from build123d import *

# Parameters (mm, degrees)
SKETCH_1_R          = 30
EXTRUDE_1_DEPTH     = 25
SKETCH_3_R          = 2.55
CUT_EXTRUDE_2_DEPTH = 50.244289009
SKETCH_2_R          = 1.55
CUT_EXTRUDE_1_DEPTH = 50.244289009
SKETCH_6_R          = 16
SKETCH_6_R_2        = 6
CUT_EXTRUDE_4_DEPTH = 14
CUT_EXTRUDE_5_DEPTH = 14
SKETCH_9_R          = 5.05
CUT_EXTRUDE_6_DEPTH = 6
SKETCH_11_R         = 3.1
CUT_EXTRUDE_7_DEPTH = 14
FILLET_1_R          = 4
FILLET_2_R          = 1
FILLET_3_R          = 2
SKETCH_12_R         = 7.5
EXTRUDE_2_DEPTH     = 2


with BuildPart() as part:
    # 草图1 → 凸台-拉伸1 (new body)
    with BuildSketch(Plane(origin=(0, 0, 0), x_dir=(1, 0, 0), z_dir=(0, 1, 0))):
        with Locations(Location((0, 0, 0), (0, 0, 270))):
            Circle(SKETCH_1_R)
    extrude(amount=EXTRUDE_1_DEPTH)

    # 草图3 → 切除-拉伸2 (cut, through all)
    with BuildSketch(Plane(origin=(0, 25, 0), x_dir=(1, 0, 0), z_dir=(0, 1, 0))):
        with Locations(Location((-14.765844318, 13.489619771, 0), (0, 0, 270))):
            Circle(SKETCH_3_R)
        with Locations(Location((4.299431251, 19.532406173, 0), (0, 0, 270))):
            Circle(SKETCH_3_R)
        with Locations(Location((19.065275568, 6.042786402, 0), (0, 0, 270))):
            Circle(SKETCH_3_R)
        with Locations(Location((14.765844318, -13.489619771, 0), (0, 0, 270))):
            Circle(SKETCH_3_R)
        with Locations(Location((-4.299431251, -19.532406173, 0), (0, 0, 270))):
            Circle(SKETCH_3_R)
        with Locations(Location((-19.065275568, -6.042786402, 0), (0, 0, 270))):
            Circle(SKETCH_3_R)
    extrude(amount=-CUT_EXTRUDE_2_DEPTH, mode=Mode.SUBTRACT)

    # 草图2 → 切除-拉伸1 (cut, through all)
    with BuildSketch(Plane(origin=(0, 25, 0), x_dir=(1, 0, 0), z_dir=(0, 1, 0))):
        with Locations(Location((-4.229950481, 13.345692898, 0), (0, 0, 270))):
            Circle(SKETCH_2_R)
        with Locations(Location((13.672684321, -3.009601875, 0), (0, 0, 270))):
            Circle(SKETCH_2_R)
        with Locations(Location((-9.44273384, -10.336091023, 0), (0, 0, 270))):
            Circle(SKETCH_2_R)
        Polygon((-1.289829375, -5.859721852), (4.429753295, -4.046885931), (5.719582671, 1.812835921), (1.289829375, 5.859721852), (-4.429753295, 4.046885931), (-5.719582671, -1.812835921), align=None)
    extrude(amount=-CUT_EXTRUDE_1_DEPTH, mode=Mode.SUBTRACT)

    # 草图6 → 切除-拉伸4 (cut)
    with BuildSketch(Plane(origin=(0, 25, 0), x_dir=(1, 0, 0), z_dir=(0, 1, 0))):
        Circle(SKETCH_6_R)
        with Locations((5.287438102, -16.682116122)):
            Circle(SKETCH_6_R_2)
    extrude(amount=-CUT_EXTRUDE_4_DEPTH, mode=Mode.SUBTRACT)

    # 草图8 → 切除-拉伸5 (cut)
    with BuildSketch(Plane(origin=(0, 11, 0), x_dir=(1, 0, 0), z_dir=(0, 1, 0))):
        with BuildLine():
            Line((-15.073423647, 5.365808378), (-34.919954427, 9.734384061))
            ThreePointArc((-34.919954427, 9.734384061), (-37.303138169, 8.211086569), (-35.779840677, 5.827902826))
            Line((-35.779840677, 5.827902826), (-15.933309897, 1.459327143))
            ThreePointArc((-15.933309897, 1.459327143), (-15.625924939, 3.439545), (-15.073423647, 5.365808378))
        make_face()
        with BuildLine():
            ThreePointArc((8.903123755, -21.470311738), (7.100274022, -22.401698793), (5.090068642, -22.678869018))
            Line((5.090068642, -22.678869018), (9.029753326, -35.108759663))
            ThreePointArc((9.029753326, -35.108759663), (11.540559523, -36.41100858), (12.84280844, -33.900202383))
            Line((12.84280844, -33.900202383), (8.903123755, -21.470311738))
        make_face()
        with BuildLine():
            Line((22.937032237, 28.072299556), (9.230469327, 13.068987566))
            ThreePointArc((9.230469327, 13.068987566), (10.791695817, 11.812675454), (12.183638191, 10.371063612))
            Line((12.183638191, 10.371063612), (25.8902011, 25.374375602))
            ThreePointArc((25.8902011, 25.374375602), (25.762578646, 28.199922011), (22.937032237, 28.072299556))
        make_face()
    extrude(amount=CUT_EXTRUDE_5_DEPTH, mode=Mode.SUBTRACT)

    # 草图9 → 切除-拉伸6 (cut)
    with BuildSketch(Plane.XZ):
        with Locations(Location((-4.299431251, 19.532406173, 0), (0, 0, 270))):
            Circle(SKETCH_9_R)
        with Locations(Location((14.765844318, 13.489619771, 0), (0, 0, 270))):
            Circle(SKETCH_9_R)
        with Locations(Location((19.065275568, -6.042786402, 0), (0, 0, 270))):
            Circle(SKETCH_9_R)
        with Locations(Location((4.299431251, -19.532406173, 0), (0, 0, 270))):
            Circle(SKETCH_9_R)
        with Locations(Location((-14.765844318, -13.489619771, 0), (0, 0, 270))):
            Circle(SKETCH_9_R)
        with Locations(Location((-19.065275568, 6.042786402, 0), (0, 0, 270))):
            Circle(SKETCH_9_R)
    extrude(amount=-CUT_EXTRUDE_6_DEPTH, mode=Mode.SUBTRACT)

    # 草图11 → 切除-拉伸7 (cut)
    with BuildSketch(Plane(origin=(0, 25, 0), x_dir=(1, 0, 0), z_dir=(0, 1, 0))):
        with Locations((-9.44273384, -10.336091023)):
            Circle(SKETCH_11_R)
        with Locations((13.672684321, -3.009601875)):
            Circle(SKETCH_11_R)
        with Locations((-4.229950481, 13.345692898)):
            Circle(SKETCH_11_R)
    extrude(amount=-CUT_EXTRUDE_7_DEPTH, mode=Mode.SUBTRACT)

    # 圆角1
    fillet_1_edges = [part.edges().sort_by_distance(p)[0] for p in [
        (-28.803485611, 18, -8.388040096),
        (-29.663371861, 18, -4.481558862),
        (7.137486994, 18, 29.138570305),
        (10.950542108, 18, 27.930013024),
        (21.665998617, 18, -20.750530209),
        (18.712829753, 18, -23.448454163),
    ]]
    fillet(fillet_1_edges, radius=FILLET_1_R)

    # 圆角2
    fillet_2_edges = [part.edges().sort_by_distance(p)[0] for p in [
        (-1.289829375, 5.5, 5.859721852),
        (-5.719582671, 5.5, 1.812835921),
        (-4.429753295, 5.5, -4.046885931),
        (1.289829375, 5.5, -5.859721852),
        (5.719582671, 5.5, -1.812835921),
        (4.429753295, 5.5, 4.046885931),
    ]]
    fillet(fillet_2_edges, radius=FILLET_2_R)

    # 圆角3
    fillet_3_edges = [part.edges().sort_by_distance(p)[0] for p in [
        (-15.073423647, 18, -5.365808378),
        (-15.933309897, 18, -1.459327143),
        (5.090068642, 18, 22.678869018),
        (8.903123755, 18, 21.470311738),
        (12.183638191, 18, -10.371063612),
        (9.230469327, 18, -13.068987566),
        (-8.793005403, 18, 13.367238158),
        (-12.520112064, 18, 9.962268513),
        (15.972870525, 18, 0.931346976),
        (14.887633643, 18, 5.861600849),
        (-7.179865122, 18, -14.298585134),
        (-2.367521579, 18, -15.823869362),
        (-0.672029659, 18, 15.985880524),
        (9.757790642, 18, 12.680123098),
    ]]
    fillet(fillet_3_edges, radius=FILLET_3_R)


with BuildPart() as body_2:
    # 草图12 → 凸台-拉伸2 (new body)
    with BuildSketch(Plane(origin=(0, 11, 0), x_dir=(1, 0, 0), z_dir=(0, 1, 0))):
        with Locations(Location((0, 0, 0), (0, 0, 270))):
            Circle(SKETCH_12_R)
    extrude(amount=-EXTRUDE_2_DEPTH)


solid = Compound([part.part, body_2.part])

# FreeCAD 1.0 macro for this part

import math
import FreeCAD as App
import Part
import Sketcher


def edges_at(feature, points):
    """Names of the edges that pass closest to the given points."""
    edges = feature.Shape.Edges
    near = lambda p: min(range(len(edges)), key=lambda i: edges[i].distToShape(Part.Vertex(*p))[0])
    return sorted({f"Edge{near(p) + 1}" for p in points})

doc = App.newDocument("Part")
body = doc.addObject("PartDesign::Body", "Body")

# Sketch on XZ plane
sketch1 = body.newObject("Sketcher::SketchObject", "Sketch")
sketch1.AttachmentSupport = (doc.getObject("XZ_Plane"), [""])
sketch1.MapMode = "FlatFace"
sketch1.addGeometry(Part.Circle(App.Vector(0, 0, 0), App.Vector(0, 0, 1), 30), False)
sketch1.addConstraint([
    Sketcher.Constraint("Coincident", 0, 3, -1, 1),
    Sketcher.Constraint("Diameter", 0, 60.0),
])
pad1 = body.newObject("PartDesign::Pad", "Pad")
pad1.Profile = sketch1
pad1.Length = 25
pad1.Reversed = True

# Sketch on XZ plane
sketch2 = body.newObject("Sketcher::SketchObject", "Sketch001")
sketch2.AttachmentSupport = (doc.getObject("XZ_Plane"), [""])
sketch2.MapMode = "FlatFace"
sketch2.AttachmentOffset = App.Placement(App.Vector(0, 0, -25), App.Rotation())
sketch2.addGeometry([
    Part.Circle(App.Vector(-14.8, -13.5, 0), App.Vector(0, 0, 1), 2.5),  # 0
    Part.Circle(App.Vector(4.3, -19.5, 0), App.Vector(0, 0, 1), 2.5),  # 1
    Part.Circle(App.Vector(19.1, -6, 0), App.Vector(0, 0, 1), 2.5),  # 2
    Part.Circle(App.Vector(14.8, 13.5, 0), App.Vector(0, 0, 1), 2.5),  # 3
    Part.Circle(App.Vector(-4.3, 19.5, 0), App.Vector(0, 0, 1), 2.5),  # 4
    Part.Circle(App.Vector(-19.1, 6, 0), App.Vector(0, 0, 1), 2.5),  # 5
], False)
sketch2.addConstraint([
    Sketcher.Constraint("Equal", 0, 1),
    Sketcher.Constraint("Equal", 1, 2),
    Sketcher.Constraint("Equal", 2, 3),
    Sketcher.Constraint("Equal", 3, 4),
    Sketcher.Constraint("Equal", 4, 5),
    Sketcher.Constraint("Symmetric", 0, 3, 3, 3, -1, 1),
    Sketcher.Constraint("Symmetric", 1, 3, 4, 3, -1, 1),
    Sketcher.Constraint("Symmetric", 2, 3, 5, 3, -1, 1),
    Sketcher.Constraint("Diameter", 0, 5.1),
    Sketcher.Constraint("DistanceY", 0, 3, -1, 1, 13.48962),
    Sketcher.Constraint("DistanceX", -1, 1, 1, 3, 4.299431),
    Sketcher.Constraint("DistanceY", 1, 3, 2, 3, 13.48962),
    Sketcher.Constraint("DistanceX", 0, 3, 2, 3, 33.83112),
    Sketcher.Constraint("DistanceX", 3, 3, 2, 3, 4.299431),
    Sketcher.Constraint("DistanceY", 1, 3, -1, 1, 19.532406),
])
pocket1 = body.newObject("PartDesign::Pocket", "Pocket")
pocket1.Profile = sketch2
pocket1.Type = "ThroughAll"
pocket1.Reversed = True

# Sketch on XZ plane
sketch3 = body.newObject("Sketcher::SketchObject", "Sketch002")
sketch3.AttachmentSupport = (doc.getObject("XZ_Plane"), [""])
sketch3.MapMode = "FlatFace"
sketch3.AttachmentOffset = App.Placement(App.Vector(0, 0, -25), App.Rotation())
sketch3.addGeometry([
    Part.Circle(App.Vector(-4.2, -13.3, 0), App.Vector(0, 0, 1), 1.6),  # 0
    Part.Circle(App.Vector(13.7, 3, 0), App.Vector(0, 0, 1), 1.6),  # 1
    Part.Circle(App.Vector(-9.4, 10.3, 0), App.Vector(0, 0, 1), 1.6),  # 2
    Part.LineSegment(App.Vector(-1.3, 5.9, 0), App.Vector(4.4, 4, 0)),  # 3
    Part.LineSegment(App.Vector(4.4, 4, 0), App.Vector(5.7, -1.8, 0)),  # 4
    Part.LineSegment(App.Vector(5.7, -1.8, 0), App.Vector(1.3, -5.9, 0)),  # 5
    Part.LineSegment(App.Vector(1.3, -5.9, 0), App.Vector(-4.4, -4, 0)),  # 6
    Part.LineSegment(App.Vector(-4.4, -4, 0), App.Vector(-5.7, 1.8, 0)),  # 7
    Part.LineSegment(App.Vector(-5.7, 1.8, 0), App.Vector(-1.3, 5.9, 0)),  # 8
], False)
sketch3.addConstraint([
    Sketcher.Constraint("Coincident", 3, 2, 4, 1),
    Sketcher.Constraint("Coincident", 4, 2, 5, 1),
    Sketcher.Constraint("Coincident", 5, 2, 6, 1),
    Sketcher.Constraint("Coincident", 6, 2, 7, 1),
    Sketcher.Constraint("Coincident", 7, 2, 8, 1),
    Sketcher.Constraint("Coincident", 8, 2, 3, 1),
    Sketcher.Constraint("Equal", 0, 1),
    Sketcher.Constraint("Equal", 1, 2),
    Sketcher.Constraint("Symmetric", 3, 2, 6, 2, -1, 1),
    Sketcher.Constraint("Symmetric", 4, 2, 7, 2, -1, 1),
    Sketcher.Constraint("Symmetric", 5, 2, 8, 2, -1, 1),
    Sketcher.Constraint("Equal", 3, 4),
    Sketcher.Constraint("Equal", 4, 5),
    Sketcher.Constraint("Diameter", 0, 3.1),
    Sketcher.Constraint("Distance", 3, 6.0),
    Sketcher.Constraint("DistanceY", -1, 1, 1, 3, 3.009602),
    Sketcher.Constraint("DistanceX", 4, 2, 1, 3, 7.953102),
    Sketcher.Constraint("DistanceX", 0, 3, -1, 1, 4.22995),
    Sketcher.Constraint("DistanceY", -1, 1, 2, 3, 10.336091),
    Sketcher.Constraint("DistanceX", -1, 1, 5, 2, 1.289829),
    Sketcher.Constraint("DistanceY", 5, 2, -1, 1, 5.859722),
    Sketcher.Constraint("DistanceX", 2, 3, 1, 3, 23.115418),
    Sketcher.Constraint("DistanceX", 3, 2, 1, 3, 9.242931),
    Sketcher.Constraint("DistanceY", 0, 3, 3, 2, 17.392579),
])
pocket2 = body.newObject("PartDesign::Pocket", "Pocket001")
pocket2.Profile = sketch3
pocket2.Type = "ThroughAll"
pocket2.Reversed = True

# Sketch on XZ plane
sketch4 = body.newObject("Sketcher::SketchObject", "Sketch003")
sketch4.AttachmentSupport = (doc.getObject("XZ_Plane"), [""])
sketch4.MapMode = "FlatFace"
sketch4.AttachmentOffset = App.Placement(App.Vector(0, 0, -25), App.Rotation())
sketch4.addGeometry([
    Part.ArcOfCircle(Part.Circle(App.Vector(0, 0, 0), App.Vector(0, 0, 1), 16), math.radians(92), math.radians(412)),
    Part.ArcOfCircle(Part.Circle(App.Vector(5, 17, 0), App.Vector(0, 0, 1), 6), math.radians(-42), math.radians(187)),
], False)
sketch4.addConstraint([
    Sketcher.Constraint("Coincident", 0, 1, 1, 2),
    Sketcher.Constraint("Coincident", 1, 1, 0, 2),
    Sketcher.Constraint("Coincident", 0, 3, -1, 1),
    Sketcher.Constraint("Radius", 0, 16.0),
    Sketcher.Constraint("Radius", 1, 6.0),
    Sketcher.Constraint("DistanceX", -1, 1, 1, 3, 5.287438),
    Sketcher.Constraint("DistanceX", 0, 1, -1, 1, 0.67203),
])
pocket3 = body.newObject("PartDesign::Pocket", "Pocket002")
pocket3.Profile = sketch4
pocket3.Length = 14
pocket3.Reversed = True

# Sketch on XZ plane
sketch5 = body.newObject("Sketcher::SketchObject", "Sketch004")
sketch5.AttachmentSupport = (doc.getObject("XZ_Plane"), [""])
sketch5.MapMode = "FlatFace"
sketch5.AttachmentOffset = App.Placement(App.Vector(0, 0, -11), App.Rotation())
sketch5.addGeometry([
    Part.LineSegment(App.Vector(-15.1, -5.4, 0), App.Vector(-34.9, -9.7, 0)),  # 0
    Part.ArcOfCircle(Part.Circle(App.Vector(-35.3, -7.8, 0), App.Vector(0, 0, 1), 2), math.radians(102), math.radians(282)),  # 1
    Part.LineSegment(App.Vector(-35.8, -5.8, 0), App.Vector(-15.9, -1.5, 0)),  # 2
    Part.ArcOfCircle(Part.Circle(App.Vector(0, 0, 0), App.Vector(0, 0, 1), 16), math.radians(-174.77), math.radians(-160.41)),  # 3
    Part.ArcOfCircle(Part.Circle(App.Vector(5.3, 16.7, 0), App.Vector(0, 0, 1), 6), math.radians(53), math.radians(92)),  # 4
    Part.LineSegment(App.Vector(5.1, 22.7, 0), App.Vector(9, 35.1, 0)),  # 5
    Part.ArcOfCircle(Part.Circle(App.Vector(10.9, 34.5, 0), App.Vector(0, 0, 1), 2), math.radians(-18), math.radians(162)),  # 6
    Part.LineSegment(App.Vector(12.8, 33.9, 0), App.Vector(8.9, 21.5, 0)),  # 7
    Part.LineSegment(App.Vector(22.9, -28.1, 0), App.Vector(9.2, -13.1, 0)),  # 8
    Part.ArcOfCircle(Part.Circle(App.Vector(0, 0, 0), App.Vector(0, 0, 1), 16), math.radians(-54.77), math.radians(-40.41)),  # 9
    Part.LineSegment(App.Vector(12.2, -10.4, 0), App.Vector(25.9, -25.4, 0)),  # 10
    Part.ArcOfCircle(Part.Circle(App.Vector(24.4, -26.7, 0), App.Vector(0, 0, 1), 2), math.radians(-138), math.radians(42)),  # 11
], False)
sketch5.addConstraint([
    Sketcher.Constraint("Tangent", 0, 2, 1, 2),
    Sketcher.Constraint("Tangent", 1, 1, 2, 1),
    Sketcher.Constraint("Coincident", 2, 2, 3, 1),
    Sketcher.Constraint("Coincident", 3, 2, 0, 1),
    Sketcher.Constraint("Coincident", 4, 2, 5, 1),
    Sketcher.Constraint("Tangent", 5, 2, 6, 2),
    Sketcher.Constraint("Tangent", 6, 1, 7, 1),
    Sketcher.Constraint("Coincident", 7, 2, 4, 1),
    Sketcher.Constraint("Coincident", 8, 2, 9, 1),
    Sketcher.Constraint("Coincident", 9, 2, 10, 1),
    Sketcher.Constraint("Tangent", 10, 2, 11, 2),
    Sketcher.Constraint("Tangent", 11, 1, 8, 1),
    Sketcher.Constraint("Coincident", 3, 3, -1, 1),
    Sketcher.Constraint("Coincident", 9, 3, -1, 1),
    Sketcher.Constraint("Equal", 1, 6),
    Sketcher.Constraint("Equal", 3, 9),
    Sketcher.Constraint("Equal", 6, 11),
    Sketcher.Constraint("Parallel", 0, 2),
    Sketcher.Constraint("Parallel", 5, 7),
    Sketcher.Constraint("Parallel", 8, 10),
    Sketcher.Constraint("Equal", 0, 2),
    Sketcher.Constraint("Equal", 5, 7),
    Sketcher.Constraint("Equal", 2, 8),
    Sketcher.Constraint("Equal", 8, 10),
    Sketcher.Constraint("Radius", 1, 2.0),
    Sketcher.Constraint("Radius", 3, 16.0),
    Sketcher.Constraint("Radius", 4, 6.0),
    Sketcher.Constraint("Distance", 5, 13.039298),
    Sketcher.Constraint("DistanceX", -1, 1, 10, 2, 25.890201),
    Sketcher.Constraint("DistanceY", 11, 1, -1, 1, 28.0723),
    Sketcher.Constraint("DistanceY", 0, 2, 4, 3, 26.4165),
    Sketcher.Constraint("DistanceX", -1, 1, 4, 3, 5.287438),
    Sketcher.Constraint("DistanceX", -1, 1, 6, 3, 10.936281),
    Sketcher.Constraint("DistanceY", -1, 1, 6, 3, 34.504481),
])
pocket4 = body.newObject("PartDesign::Pocket", "Pocket003")
pocket4.Profile = sketch5
pocket4.Length = 14

# Sketch on XZ plane
sketch6 = body.newObject("Sketcher::SketchObject", "Sketch005")
sketch6.AttachmentSupport = (doc.getObject("XZ_Plane"), [""])
sketch6.MapMode = "FlatFace"
sketch6.addGeometry([
    Part.Circle(App.Vector(-4, 20, 0), App.Vector(0, 0, 1), 5),  # 0
    Part.Circle(App.Vector(15, 13, 0), App.Vector(0, 0, 1), 5),  # 1
    Part.Circle(App.Vector(19, -6, 0), App.Vector(0, 0, 1), 5),  # 2
    Part.Circle(App.Vector(4, -20, 0), App.Vector(0, 0, 1), 5),  # 3
    Part.Circle(App.Vector(-15, -13, 0), App.Vector(0, 0, 1), 5),  # 4
    Part.Circle(App.Vector(-19, 6, 0), App.Vector(0, 0, 1), 5),  # 5
], False)
sketch6.addConstraint([
    Sketcher.Constraint("Equal", 0, 1),
    Sketcher.Constraint("Equal", 1, 2),
    Sketcher.Constraint("Equal", 2, 3),
    Sketcher.Constraint("Equal", 3, 4),
    Sketcher.Constraint("Equal", 4, 5),
    Sketcher.Constraint("Symmetric", 0, 3, 3, 3, -1, 1),
    Sketcher.Constraint("Symmetric", 1, 3, 4, 3, -1, 1),
    Sketcher.Constraint("Symmetric", 2, 3, 5, 3, -1, 1),
    Sketcher.Constraint("Diameter", 0, 10.1),
    Sketcher.Constraint("DistanceX", 0, 3, -1, 1, 4.299431),
    Sketcher.Constraint("DistanceY", -1, 1, 1, 3, 13.48962),
    Sketcher.Constraint("DistanceX", 1, 3, 2, 3, 4.299431),
    Sketcher.Constraint("DistanceY", 3, 3, 2, 3, 13.48962),
    Sketcher.Constraint("DistanceX", 4, 3, 2, 3, 33.83112),
    Sketcher.Constraint("DistanceY", -1, 1, 0, 3, 19.532406),
])
pocket5 = body.newObject("PartDesign::Pocket", "Pocket004")
pocket5.Profile = sketch6
pocket5.Length = 6

# Sketch on XZ plane
sketch7 = body.newObject("Sketcher::SketchObject", "Sketch006")
sketch7.AttachmentSupport = (doc.getObject("XZ_Plane"), [""])
sketch7.MapMode = "FlatFace"
sketch7.AttachmentOffset = App.Placement(App.Vector(0, 0, -25), App.Rotation())
sketch7.addGeometry([
    Part.Circle(App.Vector(-9.4, 10.3, 0), App.Vector(0, 0, 1), 3.1),
    Part.Circle(App.Vector(13.7, 3, 0), App.Vector(0, 0, 1), 3.1),
    Part.Circle(App.Vector(-4.2, -13.3, 0), App.Vector(0, 0, 1), 3.1),
], False)
sketch7.addConstraint([
    Sketcher.Constraint("Equal", 0, 1),
    Sketcher.Constraint("Equal", 1, 2),
    Sketcher.Constraint("Diameter", 0, 6.2),
    Sketcher.Constraint("DistanceY", -1, 1, 1, 3, 3.009602),
    Sketcher.Constraint("DistanceY", -1, 1, 0, 3, 10.336091),
    Sketcher.Constraint("DistanceX", 2, 3, -1, 1, 4.22995),
    Sketcher.Constraint("DistanceX", 0, 3, 1, 3, 23.115418),
    Sketcher.Constraint("DistanceX", 0, 3, -1, 1, 9.442734),
    Sketcher.Constraint("DistanceY", 2, 3, -1, 1, 13.345693),
])
pocket6 = body.newObject("PartDesign::Pocket", "Pocket005")
pocket6.Profile = sketch7
pocket6.Length = 14
pocket6.Reversed = True
doc.recompute()

fillet = body.newObject("PartDesign::Fillet", "Fillet")
fillet.Base = (pocket6, edges_at(pocket6, [
    (-28.803, 18, -8.388),
    (-29.663, 18, -4.482),
    (7.137, 18, 29.139),
    (10.951, 18, 27.93),
    (21.666, 18, -20.751),
    (18.713, 18, -23.448),
]))
fillet.Radius = 4
doc.recompute()

fillet2 = body.newObject("PartDesign::Fillet", "Fillet001")
fillet2.Base = (fillet, edges_at(fillet, [
    (-1.29, 5.5, 5.86),
    (-5.72, 5.5, 1.813),
    (-4.43, 5.5, -4.047),
    (1.29, 5.5, -5.86),
    (5.72, 5.5, -1.813),
    (4.43, 5.5, 4.047),
]))
fillet2.Radius = 1
doc.recompute()

fillet3 = body.newObject("PartDesign::Fillet", "Fillet002")
fillet3.Base = (fillet2, edges_at(fillet2, [
    (-15.073, 18, -5.366),
    (-15.933, 18, -1.459),
    (5.09, 18, 22.679),
    (8.903, 18, 21.47),
    (12.184, 18, -10.371),
    (9.23, 18, -13.069),
    (-8.793, 18, 13.367),
    (-12.52, 18, 9.962),
    (15.973, 18, 0.931),
    (14.888, 18, 5.862),
    (-7.18, 18, -14.299),
    (-2.368, 18, -15.824),
    (-0.672, 18, 15.986),
    (9.758, 18, 12.68),
]))
fillet3.Radius = 2
body2 = doc.addObject("PartDesign::Body", "Body001")

# Sketch on XZ plane
sketch8 = body2.newObject("Sketcher::SketchObject", "Sketch007")
sketch8.AttachmentSupport = (doc.getObject("XZ_Plane001"), [""])
sketch8.MapMode = "FlatFace"
sketch8.AttachmentOffset = App.Placement(App.Vector(0, 0, -11), App.Rotation())
sketch8.addGeometry(Part.Circle(App.Vector(0, 0, 0), App.Vector(0, 0, 1), 8), False)
sketch8.addConstraint([
    Sketcher.Constraint("Coincident", 0, 3, -1, 1),
    Sketcher.Constraint("Diameter", 0, 15.0),
])
pad2 = body2.newObject("PartDesign::Pad", "Pad001")
pad2.Profile = sketch8
pad2.Length = 2

doc.recompute()
